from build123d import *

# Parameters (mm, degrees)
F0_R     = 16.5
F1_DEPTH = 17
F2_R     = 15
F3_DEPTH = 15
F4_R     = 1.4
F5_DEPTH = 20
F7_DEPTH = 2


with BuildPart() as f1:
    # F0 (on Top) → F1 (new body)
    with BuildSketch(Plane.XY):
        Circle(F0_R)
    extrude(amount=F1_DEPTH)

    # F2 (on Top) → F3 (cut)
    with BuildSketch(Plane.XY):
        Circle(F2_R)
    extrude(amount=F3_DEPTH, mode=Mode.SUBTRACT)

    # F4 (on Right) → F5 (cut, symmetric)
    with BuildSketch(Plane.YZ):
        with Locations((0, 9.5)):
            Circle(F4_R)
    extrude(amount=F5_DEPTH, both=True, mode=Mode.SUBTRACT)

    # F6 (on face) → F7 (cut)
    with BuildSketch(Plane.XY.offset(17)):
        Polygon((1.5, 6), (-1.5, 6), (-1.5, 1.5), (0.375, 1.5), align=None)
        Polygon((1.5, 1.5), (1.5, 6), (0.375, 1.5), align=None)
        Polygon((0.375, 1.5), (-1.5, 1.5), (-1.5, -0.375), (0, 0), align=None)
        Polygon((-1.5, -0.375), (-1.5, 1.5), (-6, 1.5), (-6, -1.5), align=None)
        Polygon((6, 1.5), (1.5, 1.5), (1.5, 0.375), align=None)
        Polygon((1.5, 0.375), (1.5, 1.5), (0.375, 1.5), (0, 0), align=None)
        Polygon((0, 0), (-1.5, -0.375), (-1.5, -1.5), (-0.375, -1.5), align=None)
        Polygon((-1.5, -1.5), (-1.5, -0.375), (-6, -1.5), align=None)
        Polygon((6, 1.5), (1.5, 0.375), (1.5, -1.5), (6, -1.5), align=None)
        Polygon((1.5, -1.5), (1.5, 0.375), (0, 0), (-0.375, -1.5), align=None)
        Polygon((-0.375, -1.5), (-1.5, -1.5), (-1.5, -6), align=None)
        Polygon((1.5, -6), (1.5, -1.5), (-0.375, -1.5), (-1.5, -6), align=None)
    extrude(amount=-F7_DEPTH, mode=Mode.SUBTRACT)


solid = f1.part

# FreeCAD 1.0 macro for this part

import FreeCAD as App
import Part
import Sketcher
Q = App.Units.Quantity


def add_polygon(sketch, points):
    """Adds a closed chain of lines whose ends are joined by coincident constraints."""
    first, n = sketch.GeometryCount, len(points)
    for a, b in zip(points, points[1:] + points[:1]):
        sketch.addGeometry(Part.LineSegment(App.Vector(*a, 0), App.Vector(*b, 0)), False)
    for i in range(n):
        sketch.addConstraint(Sketcher.Constraint("Coincident", first + i, 2, first + (i + 1) % n, 1))

doc = App.newDocument("Part")
body = doc.addObject("PartDesign::Body", "Body")

# Sketch on XY plane
sketch1 = body.newObject("Sketcher::SketchObject", "Sketch")
sketch1.AttachmentSupport = (doc.getObject("XY_Plane"), [""])
sketch1.MapMode = "FlatFace"
sketch1.addGeometry(Part.Circle(App.Vector(0, 0, 0), App.Vector(0, 0, 1), 16.5), False)
sketch1.addConstraint([
    Sketcher.Constraint("Coincident", 0, 3, -1, 1),
    Sketcher.Constraint("Diameter", 0, Q("33 mm")),
])
pad1 = body.newObject("PartDesign::Pad", "Pad")
pad1.Profile = sketch1
pad1.Length = 17

# Sketch on XY plane
sketch2 = body.newObject("Sketcher::SketchObject", "Sketch001")
sketch2.AttachmentSupport = (doc.getObject("XY_Plane"), [""])
sketch2.MapMode = "FlatFace"
sketch2.addGeometry(Part.Circle(App.Vector(0, 0, 0), App.Vector(0, 0, 1), 15), False)
sketch2.addConstraint([
    Sketcher.Constraint("Coincident", 0, 3, -1, 1),
    Sketcher.Constraint("Diameter", 0, Q("30 mm")),
])
pocket1 = body.newObject("PartDesign::Pocket", "Pocket")
pocket1.Profile = sketch2
pocket1.Length = 15
pocket1.Reversed = True

# Sketch on YZ plane
sketch3 = body.newObject("Sketcher::SketchObject", "Sketch002")
sketch3.AttachmentSupport = (doc.getObject("YZ_Plane"), [""])
sketch3.MapMode = "FlatFace"
sketch3.addGeometry(Part.Circle(App.Vector(0, 9.5, 0), App.Vector(0, 0, 1), 1.4), False)
sketch3.addConstraint([
    Sketcher.Constraint("PointOnObject", 0, 3, -2),
    Sketcher.Constraint("Diameter", 0, Q("2.8 mm")),
    Sketcher.Constraint("DistanceY", -1, 1, 0, 3, Q("9.5 mm")),
])
pocket2 = body.newObject("PartDesign::Pocket", "Pocket001")
pocket2.Profile = sketch3
pocket2.Length = 40
pocket2.Midplane = True

# Sketch on XY plane
sketch4 = body.newObject("Sketcher::SketchObject", "Sketch003")
sketch4.AttachmentSupport = (doc.getObject("XY_Plane"), [""])
sketch4.MapMode = "FlatFace"
sketch4.AttachmentOffset = App.Placement(App.Vector(0, 0, 17), App.Rotation())
add_polygon(sketch4, [(1.5, 6), (-1.5, 6), (-1.5, 1.5), (-6, 1.5), (-6, -1.5), (-1.5, -1.5), (-1.5, -6), (1.5, -6), (1.5, -1.5), (6, -1.5), (6, 1.5), (1.5, 1.5)])  # lines 0-11
sketch4.addConstraint([
    Sketcher.Constraint("Horizontal", 0),
    Sketcher.Constraint("Vertical", 1),
    Sketcher.Constraint("Horizontal", 2),
    Sketcher.Constraint("Vertical", 3),
    Sketcher.Constraint("Horizontal", 4),
    Sketcher.Constraint("Vertical", 5),
    Sketcher.Constraint("Horizontal", 6),
    Sketcher.Constraint("Vertical", 7),
    Sketcher.Constraint("Horizontal", 8),
    Sketcher.Constraint("Vertical", 9),
    Sketcher.Constraint("Horizontal", 10),
    Sketcher.Constraint("Vertical", 11),
    Sketcher.Constraint("Symmetric", 0, 2, 6, 2, -1, 1),
    Sketcher.Constraint("Symmetric", 2, 2, 8, 2, -1, 1),
    Sketcher.Constraint("Symmetric", 4, 2, 10, 2, -1, 1),
    Sketcher.Constraint("Symmetric", 4, 2, 7, 2, -2),
    Sketcher.Constraint("Equal", 10, 1),
    Sketcher.Constraint("Equal", 6, 3),
    Sketcher.Constraint("DistanceX", 0, 2, 0, 1, Q("3 mm")),
    Sketcher.Constraint("DistanceX", 2, 2, 2, 1, Q("4.5 mm")),
])
pocket3 = body.newObject("PartDesign::Pocket", "Pocket002")
pocket3.Profile = sketch4
pocket3.Length = 2

doc.recompute()
